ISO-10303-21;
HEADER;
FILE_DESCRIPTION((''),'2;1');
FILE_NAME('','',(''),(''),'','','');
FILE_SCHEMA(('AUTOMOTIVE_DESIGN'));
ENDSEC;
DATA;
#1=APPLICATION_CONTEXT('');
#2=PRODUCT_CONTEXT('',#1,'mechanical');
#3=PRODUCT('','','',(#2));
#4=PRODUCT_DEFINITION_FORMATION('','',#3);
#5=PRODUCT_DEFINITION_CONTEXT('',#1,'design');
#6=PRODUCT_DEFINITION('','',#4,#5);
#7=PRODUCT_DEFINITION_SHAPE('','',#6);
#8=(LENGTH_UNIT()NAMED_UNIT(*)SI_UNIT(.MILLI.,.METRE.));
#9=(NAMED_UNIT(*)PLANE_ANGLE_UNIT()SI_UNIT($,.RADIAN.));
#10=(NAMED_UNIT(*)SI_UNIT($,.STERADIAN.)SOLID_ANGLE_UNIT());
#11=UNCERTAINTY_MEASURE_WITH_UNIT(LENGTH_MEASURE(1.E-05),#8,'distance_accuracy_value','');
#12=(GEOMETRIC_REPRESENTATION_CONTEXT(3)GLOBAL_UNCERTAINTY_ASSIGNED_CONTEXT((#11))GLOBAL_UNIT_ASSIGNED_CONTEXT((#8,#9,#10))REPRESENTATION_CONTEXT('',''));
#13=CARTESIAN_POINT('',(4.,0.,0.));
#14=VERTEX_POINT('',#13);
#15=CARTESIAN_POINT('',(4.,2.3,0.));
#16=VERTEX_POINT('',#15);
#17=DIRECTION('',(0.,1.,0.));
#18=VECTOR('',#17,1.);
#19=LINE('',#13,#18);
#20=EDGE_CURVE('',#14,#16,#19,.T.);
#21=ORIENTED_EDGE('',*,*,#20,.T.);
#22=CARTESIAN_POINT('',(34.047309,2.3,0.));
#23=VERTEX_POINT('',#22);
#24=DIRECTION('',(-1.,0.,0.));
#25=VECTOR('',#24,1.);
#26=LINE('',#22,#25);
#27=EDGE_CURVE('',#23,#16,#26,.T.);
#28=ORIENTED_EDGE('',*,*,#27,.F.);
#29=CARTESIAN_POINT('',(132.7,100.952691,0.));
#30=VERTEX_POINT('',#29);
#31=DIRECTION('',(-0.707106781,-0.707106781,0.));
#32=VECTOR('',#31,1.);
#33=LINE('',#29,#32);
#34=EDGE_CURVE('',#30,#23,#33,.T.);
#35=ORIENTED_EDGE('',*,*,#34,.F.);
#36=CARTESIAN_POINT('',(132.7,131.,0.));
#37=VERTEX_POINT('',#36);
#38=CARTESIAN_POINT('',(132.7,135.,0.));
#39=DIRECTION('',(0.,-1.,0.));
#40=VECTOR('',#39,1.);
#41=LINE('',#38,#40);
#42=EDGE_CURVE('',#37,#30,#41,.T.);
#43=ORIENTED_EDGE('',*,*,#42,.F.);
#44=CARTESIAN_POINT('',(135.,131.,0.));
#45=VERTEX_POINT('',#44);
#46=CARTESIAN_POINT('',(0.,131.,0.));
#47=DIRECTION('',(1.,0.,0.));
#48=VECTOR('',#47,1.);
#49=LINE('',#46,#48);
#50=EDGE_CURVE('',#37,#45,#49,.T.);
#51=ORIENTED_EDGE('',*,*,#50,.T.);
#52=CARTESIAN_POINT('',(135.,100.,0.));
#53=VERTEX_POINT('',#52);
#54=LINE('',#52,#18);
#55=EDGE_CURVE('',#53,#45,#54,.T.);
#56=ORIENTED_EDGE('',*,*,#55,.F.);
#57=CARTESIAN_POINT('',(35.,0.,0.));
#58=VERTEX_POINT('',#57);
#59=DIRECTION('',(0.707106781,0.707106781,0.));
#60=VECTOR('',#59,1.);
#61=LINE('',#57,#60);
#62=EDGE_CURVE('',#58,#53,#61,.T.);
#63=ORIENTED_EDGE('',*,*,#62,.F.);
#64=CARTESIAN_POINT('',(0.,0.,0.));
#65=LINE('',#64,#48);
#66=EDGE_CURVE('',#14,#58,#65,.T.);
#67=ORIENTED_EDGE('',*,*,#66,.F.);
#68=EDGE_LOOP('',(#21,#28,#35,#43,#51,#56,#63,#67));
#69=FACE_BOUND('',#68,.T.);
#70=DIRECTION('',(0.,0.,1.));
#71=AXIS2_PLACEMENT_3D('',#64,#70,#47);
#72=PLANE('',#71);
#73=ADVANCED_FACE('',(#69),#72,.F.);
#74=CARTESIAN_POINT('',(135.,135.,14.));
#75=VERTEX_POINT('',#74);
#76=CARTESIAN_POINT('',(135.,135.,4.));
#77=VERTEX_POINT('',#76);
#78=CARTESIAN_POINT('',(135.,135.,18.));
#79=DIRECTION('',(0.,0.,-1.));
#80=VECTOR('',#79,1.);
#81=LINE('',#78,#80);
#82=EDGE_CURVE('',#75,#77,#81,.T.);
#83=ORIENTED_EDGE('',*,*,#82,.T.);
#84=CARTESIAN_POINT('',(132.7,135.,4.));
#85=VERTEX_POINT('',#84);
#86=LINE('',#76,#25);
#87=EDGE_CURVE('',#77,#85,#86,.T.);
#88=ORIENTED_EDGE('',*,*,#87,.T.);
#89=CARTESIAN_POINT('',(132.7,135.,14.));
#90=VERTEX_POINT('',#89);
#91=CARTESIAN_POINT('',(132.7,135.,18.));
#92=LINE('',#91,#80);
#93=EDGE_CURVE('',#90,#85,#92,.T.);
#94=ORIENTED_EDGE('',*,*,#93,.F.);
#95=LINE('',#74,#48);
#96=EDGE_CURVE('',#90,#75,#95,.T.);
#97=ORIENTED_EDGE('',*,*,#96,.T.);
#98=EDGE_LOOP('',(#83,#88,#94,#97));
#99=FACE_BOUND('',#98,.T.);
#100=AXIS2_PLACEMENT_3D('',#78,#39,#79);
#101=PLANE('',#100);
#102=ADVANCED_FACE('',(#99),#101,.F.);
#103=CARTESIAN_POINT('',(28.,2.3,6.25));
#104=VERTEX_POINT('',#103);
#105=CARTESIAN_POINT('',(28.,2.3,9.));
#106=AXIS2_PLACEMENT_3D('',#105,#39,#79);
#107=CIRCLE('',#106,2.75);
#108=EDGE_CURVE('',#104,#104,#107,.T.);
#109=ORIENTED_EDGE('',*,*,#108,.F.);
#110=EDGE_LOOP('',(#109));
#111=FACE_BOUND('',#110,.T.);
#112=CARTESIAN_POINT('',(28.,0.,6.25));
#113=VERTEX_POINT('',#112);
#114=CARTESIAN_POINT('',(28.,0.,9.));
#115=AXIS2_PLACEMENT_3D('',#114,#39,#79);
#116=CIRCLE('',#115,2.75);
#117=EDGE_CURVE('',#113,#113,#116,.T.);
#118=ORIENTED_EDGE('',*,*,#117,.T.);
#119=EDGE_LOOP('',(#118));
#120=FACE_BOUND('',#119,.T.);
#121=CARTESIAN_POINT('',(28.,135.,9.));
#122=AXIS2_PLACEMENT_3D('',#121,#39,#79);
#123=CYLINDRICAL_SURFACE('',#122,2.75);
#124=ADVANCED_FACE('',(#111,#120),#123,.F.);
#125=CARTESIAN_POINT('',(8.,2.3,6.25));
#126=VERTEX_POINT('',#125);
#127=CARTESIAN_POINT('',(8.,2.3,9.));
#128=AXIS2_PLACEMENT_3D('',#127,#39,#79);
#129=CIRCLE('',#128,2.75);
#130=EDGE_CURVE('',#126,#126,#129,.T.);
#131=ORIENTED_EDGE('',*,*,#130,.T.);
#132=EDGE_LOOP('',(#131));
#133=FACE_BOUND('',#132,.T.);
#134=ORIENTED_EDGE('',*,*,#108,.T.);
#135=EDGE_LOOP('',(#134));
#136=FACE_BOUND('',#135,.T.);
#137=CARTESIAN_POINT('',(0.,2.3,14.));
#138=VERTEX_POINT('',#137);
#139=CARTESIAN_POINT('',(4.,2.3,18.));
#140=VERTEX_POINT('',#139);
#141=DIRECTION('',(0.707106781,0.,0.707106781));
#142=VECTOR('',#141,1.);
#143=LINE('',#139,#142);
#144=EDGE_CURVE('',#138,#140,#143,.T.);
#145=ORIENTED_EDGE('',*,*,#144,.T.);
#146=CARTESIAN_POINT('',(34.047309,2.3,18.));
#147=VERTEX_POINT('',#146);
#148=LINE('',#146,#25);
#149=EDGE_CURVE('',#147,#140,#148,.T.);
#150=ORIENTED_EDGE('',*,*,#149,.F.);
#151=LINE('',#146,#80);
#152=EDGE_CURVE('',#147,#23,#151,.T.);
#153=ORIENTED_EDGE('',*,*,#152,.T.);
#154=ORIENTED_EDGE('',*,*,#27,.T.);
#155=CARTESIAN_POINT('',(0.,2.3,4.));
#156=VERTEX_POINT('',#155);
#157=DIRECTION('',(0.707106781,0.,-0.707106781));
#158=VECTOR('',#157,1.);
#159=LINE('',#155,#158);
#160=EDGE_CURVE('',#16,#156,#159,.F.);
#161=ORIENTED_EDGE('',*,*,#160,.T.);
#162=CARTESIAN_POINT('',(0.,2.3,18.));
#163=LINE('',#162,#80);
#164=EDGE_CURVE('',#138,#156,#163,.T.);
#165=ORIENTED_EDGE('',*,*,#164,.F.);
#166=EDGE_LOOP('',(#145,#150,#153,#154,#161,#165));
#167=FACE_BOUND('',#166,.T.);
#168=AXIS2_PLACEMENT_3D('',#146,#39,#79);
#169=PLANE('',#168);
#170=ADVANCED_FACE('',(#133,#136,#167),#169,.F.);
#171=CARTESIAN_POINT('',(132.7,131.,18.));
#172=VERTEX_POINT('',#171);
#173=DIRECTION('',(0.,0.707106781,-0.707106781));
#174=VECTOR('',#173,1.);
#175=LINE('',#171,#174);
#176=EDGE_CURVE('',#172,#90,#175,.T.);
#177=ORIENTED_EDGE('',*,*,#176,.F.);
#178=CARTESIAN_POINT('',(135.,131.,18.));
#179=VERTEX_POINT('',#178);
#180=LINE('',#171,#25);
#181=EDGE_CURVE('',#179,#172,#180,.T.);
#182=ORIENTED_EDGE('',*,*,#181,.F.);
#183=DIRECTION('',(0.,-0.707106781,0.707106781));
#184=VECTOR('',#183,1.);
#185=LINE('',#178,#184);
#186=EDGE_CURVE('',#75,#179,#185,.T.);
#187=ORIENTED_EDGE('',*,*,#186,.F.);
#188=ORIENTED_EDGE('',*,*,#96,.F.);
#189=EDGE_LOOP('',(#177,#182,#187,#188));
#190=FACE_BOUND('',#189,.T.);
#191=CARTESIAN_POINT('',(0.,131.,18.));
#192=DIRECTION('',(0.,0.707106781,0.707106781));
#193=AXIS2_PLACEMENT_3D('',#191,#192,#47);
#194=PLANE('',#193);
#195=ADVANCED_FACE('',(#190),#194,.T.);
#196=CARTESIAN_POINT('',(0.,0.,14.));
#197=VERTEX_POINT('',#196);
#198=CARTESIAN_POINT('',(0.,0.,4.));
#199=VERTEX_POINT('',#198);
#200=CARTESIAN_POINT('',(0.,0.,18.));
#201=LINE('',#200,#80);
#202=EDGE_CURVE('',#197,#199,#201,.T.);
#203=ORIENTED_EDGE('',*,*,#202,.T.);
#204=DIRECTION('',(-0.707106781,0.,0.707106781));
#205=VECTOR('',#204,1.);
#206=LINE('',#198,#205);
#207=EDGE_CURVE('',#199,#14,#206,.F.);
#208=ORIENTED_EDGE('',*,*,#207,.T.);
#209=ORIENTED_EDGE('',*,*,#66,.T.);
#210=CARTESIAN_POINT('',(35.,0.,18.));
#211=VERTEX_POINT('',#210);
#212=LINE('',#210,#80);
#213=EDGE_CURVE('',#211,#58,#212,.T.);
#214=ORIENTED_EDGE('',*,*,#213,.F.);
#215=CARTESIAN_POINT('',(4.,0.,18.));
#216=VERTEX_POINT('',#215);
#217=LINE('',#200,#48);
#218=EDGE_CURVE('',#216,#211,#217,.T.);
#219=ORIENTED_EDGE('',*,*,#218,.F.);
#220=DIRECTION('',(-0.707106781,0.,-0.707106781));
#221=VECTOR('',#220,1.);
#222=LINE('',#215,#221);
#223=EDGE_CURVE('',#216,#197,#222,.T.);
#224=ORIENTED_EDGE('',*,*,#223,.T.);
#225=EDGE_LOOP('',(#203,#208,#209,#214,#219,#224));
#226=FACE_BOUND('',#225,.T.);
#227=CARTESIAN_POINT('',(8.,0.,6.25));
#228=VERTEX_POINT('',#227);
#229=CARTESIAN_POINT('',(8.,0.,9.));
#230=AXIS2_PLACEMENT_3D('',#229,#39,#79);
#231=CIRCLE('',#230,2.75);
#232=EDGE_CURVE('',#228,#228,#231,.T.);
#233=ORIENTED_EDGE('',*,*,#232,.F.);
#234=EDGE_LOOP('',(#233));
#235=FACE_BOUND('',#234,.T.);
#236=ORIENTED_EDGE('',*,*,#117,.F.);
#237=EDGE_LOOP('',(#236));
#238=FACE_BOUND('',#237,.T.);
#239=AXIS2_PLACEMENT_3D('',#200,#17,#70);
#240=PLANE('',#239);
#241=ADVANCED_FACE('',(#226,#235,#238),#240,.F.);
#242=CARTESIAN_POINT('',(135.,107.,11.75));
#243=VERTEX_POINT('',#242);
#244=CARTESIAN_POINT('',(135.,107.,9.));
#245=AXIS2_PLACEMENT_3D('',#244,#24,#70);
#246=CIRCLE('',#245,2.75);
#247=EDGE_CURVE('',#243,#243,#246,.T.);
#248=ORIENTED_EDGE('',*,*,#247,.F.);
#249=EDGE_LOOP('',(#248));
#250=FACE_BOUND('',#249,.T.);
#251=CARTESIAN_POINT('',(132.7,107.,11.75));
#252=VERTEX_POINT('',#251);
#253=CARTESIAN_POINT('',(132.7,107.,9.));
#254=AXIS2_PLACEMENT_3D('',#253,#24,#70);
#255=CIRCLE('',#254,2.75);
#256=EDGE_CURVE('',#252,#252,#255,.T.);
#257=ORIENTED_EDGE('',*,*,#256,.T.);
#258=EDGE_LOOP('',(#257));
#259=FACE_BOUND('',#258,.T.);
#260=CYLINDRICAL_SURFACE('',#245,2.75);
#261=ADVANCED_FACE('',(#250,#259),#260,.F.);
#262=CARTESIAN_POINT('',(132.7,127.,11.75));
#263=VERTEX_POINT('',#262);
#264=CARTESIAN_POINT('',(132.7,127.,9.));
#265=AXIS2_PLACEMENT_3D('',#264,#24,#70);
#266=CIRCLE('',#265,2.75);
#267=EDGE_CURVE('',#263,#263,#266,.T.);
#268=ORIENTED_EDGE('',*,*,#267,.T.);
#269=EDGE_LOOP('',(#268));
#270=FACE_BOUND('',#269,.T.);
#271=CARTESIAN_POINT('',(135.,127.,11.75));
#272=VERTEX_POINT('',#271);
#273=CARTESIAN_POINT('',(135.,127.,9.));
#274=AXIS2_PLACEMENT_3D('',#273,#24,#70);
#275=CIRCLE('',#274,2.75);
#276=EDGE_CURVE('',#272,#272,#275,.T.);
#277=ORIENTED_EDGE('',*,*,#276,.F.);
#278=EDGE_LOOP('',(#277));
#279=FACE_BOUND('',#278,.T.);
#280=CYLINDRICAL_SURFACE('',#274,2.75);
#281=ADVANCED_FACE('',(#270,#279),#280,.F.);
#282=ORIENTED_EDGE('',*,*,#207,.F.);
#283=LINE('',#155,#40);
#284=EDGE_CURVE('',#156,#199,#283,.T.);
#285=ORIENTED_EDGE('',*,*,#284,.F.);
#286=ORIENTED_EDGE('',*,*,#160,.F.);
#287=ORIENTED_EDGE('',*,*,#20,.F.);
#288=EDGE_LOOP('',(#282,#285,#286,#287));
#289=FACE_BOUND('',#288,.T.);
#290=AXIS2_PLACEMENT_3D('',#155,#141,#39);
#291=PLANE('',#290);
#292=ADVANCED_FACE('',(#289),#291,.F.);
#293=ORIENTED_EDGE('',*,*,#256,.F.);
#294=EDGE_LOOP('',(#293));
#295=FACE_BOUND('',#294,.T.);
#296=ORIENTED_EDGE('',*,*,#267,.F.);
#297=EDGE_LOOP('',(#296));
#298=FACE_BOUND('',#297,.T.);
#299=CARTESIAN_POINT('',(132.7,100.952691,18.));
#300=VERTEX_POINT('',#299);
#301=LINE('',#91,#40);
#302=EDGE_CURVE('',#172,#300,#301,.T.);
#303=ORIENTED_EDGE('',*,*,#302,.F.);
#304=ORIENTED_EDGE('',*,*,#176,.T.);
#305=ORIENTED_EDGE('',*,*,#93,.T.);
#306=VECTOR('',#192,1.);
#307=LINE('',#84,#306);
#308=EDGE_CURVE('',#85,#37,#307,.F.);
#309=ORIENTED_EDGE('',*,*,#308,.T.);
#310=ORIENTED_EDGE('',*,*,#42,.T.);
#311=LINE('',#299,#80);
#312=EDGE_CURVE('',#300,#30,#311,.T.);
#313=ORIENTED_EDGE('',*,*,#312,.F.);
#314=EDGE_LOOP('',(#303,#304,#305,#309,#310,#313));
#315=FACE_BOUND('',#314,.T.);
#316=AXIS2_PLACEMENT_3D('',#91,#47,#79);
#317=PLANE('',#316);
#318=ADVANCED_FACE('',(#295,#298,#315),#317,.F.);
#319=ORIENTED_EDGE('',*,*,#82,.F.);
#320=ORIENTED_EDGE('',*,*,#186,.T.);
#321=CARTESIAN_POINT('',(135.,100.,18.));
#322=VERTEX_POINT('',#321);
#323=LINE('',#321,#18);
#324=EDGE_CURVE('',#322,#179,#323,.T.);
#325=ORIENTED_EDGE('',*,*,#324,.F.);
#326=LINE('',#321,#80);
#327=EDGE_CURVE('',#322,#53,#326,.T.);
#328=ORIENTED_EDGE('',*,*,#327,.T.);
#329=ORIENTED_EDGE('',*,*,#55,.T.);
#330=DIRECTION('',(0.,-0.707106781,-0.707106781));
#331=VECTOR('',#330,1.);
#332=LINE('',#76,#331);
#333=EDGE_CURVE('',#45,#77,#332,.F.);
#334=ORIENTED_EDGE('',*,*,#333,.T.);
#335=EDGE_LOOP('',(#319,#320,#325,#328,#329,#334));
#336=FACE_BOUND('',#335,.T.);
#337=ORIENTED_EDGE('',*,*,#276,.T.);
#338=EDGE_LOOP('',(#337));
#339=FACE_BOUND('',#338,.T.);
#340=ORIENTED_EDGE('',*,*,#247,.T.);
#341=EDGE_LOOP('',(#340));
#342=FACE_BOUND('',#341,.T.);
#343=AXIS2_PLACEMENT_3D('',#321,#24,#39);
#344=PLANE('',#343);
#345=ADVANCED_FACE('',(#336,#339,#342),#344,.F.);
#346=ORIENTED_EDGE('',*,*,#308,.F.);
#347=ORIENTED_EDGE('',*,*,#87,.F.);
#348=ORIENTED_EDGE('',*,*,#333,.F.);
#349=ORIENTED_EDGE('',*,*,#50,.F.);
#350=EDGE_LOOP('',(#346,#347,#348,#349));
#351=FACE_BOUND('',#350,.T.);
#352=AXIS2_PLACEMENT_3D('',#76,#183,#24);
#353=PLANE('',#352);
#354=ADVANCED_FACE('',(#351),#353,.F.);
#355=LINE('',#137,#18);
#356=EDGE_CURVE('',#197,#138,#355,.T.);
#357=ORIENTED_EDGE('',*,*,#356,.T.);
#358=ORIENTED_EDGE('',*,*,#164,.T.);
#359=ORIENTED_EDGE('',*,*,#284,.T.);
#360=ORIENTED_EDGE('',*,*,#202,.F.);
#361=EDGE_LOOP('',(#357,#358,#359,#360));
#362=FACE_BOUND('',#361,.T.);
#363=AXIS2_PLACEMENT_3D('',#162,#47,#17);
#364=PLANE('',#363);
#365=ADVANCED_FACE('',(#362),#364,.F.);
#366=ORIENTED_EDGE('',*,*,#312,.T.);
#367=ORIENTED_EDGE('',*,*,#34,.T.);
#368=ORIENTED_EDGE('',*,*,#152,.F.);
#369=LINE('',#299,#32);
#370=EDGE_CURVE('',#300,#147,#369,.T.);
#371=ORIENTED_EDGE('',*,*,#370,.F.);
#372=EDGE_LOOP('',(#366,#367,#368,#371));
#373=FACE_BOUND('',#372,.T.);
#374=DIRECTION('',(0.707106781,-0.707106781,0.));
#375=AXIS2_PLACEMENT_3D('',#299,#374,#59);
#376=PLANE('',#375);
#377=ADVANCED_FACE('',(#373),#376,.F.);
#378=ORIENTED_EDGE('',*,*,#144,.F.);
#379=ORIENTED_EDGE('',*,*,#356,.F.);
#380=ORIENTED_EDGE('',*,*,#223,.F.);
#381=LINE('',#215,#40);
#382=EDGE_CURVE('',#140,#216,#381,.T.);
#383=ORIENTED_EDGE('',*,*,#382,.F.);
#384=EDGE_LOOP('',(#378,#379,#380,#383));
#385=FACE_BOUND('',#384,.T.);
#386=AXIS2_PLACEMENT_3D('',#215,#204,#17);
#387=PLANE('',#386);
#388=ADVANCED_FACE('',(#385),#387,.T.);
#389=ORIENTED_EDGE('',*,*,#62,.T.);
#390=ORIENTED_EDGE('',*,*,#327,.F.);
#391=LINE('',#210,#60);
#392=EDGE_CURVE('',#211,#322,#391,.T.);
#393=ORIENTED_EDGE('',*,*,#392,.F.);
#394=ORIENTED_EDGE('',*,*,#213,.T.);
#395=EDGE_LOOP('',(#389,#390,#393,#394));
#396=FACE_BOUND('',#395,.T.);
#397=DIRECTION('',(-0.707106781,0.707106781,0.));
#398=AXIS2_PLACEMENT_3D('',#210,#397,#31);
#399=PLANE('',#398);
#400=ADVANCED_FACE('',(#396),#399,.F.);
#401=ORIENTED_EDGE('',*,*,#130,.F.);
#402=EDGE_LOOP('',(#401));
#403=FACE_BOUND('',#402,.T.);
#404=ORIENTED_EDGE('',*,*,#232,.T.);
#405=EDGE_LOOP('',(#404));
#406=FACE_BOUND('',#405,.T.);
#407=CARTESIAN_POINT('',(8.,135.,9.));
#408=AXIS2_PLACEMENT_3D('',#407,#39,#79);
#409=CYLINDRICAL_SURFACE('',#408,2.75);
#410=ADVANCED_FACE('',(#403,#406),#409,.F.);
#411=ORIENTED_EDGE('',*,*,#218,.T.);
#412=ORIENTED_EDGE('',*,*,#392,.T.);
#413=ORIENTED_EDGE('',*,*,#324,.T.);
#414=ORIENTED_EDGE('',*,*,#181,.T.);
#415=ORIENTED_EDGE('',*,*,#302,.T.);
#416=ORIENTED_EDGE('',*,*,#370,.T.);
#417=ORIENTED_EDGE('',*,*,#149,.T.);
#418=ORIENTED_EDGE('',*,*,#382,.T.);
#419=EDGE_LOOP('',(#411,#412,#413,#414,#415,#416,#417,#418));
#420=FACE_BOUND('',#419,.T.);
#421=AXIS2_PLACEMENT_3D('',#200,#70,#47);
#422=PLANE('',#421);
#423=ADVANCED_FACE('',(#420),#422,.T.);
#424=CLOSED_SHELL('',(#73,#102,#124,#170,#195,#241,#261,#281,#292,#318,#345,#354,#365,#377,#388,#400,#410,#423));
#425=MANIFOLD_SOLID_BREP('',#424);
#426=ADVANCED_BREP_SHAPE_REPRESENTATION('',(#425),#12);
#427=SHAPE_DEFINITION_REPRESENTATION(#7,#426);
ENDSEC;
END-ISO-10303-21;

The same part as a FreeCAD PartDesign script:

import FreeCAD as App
import Part
import Sketcher
Q = App.Units.Quantity


def edges_at(feature, points):
    """Names of the edges that pass closest to the given points."""
    edges = feature.Shape.Edges
    near = lambda p: min(range(len(edges)), key=lambda i: edges[i].distToShape(Part.Vertex(*p))[0])
    return sorted({f"Edge{near(p) + 1}" for p in points})

doc = App.newDocument("Part")
body = doc.addObject("PartDesign::Body", "Body")

sketch1 = body.newObject("Sketcher::SketchObject", "Sketch")
sketch1.AttachmentSupport = (doc.getObject("XY_Plane"), [""])
sketch1.MapMode = "FlatFace"
sketch1.addGeometry([
    Part.LineSegment(App.Vector(0, 0, 0), App.Vector(35, 0, 0)),
    Part.LineSegment(App.Vector(35, 0, 0), App.Vector(135, 100, 0)),
    Part.LineSegment(App.Vector(135, 100, 0), App.Vector(135, 135, 0)),
    Part.LineSegment(App.Vector(135, 135, 0), App.Vector(132.7, 135, 0)),
    Part.LineSegment(App.Vector(132.7, 135, 0), App.Vector(132.7, 100.952691, 0)),
    Part.LineSegment(App.Vector(132.7, 100.952691, 0), App.Vector(34.047309, 2.3, 0)),
    Part.LineSegment(App.Vector(34.047309, 2.3, 0), App.Vector(0, 2.3, 0)),
    Part.LineSegment(App.Vector(0, 2.3, 0), App.Vector(0, 0, 0)),
], False)
sketch1.addConstraint([
    Sketcher.Constraint("Coincident", 0, 2, 1, 1),
    Sketcher.Constraint("Coincident", 1, 2, 2, 1),
    Sketcher.Constraint("Coincident", 2, 2, 3, 1),
    Sketcher.Constraint("Coincident", 3, 2, 4, 1),
    Sketcher.Constraint("Coincident", 4, 2, 5, 1),
    Sketcher.Constraint("Coincident", 5, 2, 6, 1),
    Sketcher.Constraint("Coincident", 6, 2, 7, 1),
    Sketcher.Constraint("Coincident", 7, 2, 0, 1),
    Sketcher.Constraint("Horizontal", 0),
    Sketcher.Constraint("Vertical", 2),
    Sketcher.Constraint("Horizontal", 3),
    Sketcher.Constraint("Vertical", 4),
    Sketcher.Constraint("Horizontal", 6),
    Sketcher.Constraint("Vertical", 7),
    Sketcher.Constraint("Coincident", 7, 2, -1, 1),
    Sketcher.Constraint("Parallel", 1, 5),
    Sketcher.Constraint("Equal", 0, 2),
    Sketcher.Constraint("Equal", 6, 4),
    Sketcher.Constraint("Equal", 3, 7),
    Sketcher.Constraint("DistanceX", 0, 1, 0, 2, Q("35 mm")),
    Sketcher.Constraint("DistanceX", 3, 2, 3, 1, Q("2.3 mm")),
    Sketcher.Constraint("DistanceX", -1, 1, 1, 2, Q("135 mm")),
    Sketcher.Constraint("DistanceX", 6, 2, 6, 1, Q("34.047309 mm")),
])
pad1 = body.newObject("PartDesign::Pad", "Pad")
pad1.Profile = sketch1
pad1.Length = 18

sketch2 = body.newObject("Sketcher::SketchObject", "Sketch001")
sketch2.AttachmentSupport = (doc.getObject("YZ_Plane"), [""])
sketch2.MapMode = "FlatFace"
sketch2.AttachmentOffset = App.Placement(App.Vector(0, 0, 132.7), App.Rotation())
sketch2.addGeometry([
    Part.Circle(App.Vector(127, 9, 0), App.Vector(0, 0, 1), 2.75),
    Part.Circle(App.Vector(107, 9, 0), App.Vector(0, 0, 1), 2.75),
], False)
sketch2.addConstraint([
    Sketcher.Constraint("Equal", 0, 1),
    Sketcher.Constraint("Horizontal", 0, 3, 1, 3),
    Sketcher.Constraint("Diameter", 0, Q("5.5 mm")),
    Sketcher.Constraint("DistanceX", -1, 1, 0, 3, Q("127 mm")),
    Sketcher.Constraint("DistanceY", -1, 1, 0, 3, Q("9 mm")),
    Sketcher.Constraint("DistanceX", -1, 1, 1, 3, Q("107 mm")),
])
pocket1 = body.newObject("PartDesign::Pocket", "Pocket")
pocket1.Profile = sketch2
pocket1.Type = "ThroughAll"
pocket1.Reversed = True
doc.recompute()

chamfer = body.newObject("PartDesign::Chamfer", "Chamfer")
chamfer.Base = (pocket1, edges_at(pocket1, [(133.85, 135, 18), (133.85, 135, 0)]))
chamfer.Size = 4

sketch3 = body.newObject("Sketcher::SketchObject", "Sketch002")
sketch3.AttachmentSupport = (doc.getObject("XZ_Plane"), [""])
sketch3.MapMode = "FlatFace"
sketch3.addGeometry([
    Part.Circle(App.Vector(8, 9, 0), App.Vector(0, 0, 1), 2.75),
    Part.Circle(App.Vector(28, 9, 0), App.Vector(0, 0, 1), 2.75),
], False)
sketch3.addConstraint([
    Sketcher.Constraint("Equal", 0, 1),
    Sketcher.Constraint("Horizontal", 0, 3, 1, 3),
    Sketcher.Constraint("Diameter", 0, Q("5.5 mm")),
    Sketcher.Constraint("DistanceX", -1, 1, 0, 3, Q("8 mm")),
    Sketcher.Constraint("DistanceY", -1, 1, 0, 3, Q("9 mm")),
    Sketcher.Constraint("DistanceX", -1, 1, 1, 3, Q("28 mm")),
])
pocket2 = body.newObject("PartDesign::Pocket", "Pocket001")
pocket2.Profile = sketch3
pocket2.Type = "ThroughAll"
doc.recompute()

chamfer2 = body.newObject("PartDesign::Chamfer", "Chamfer001")
chamfer2.Base = (pocket2, edges_at(pocket2, [(0, 1.15, 0), (0, 1.15, 18)]))
chamfer2.Size = 4

doc.recompute()
